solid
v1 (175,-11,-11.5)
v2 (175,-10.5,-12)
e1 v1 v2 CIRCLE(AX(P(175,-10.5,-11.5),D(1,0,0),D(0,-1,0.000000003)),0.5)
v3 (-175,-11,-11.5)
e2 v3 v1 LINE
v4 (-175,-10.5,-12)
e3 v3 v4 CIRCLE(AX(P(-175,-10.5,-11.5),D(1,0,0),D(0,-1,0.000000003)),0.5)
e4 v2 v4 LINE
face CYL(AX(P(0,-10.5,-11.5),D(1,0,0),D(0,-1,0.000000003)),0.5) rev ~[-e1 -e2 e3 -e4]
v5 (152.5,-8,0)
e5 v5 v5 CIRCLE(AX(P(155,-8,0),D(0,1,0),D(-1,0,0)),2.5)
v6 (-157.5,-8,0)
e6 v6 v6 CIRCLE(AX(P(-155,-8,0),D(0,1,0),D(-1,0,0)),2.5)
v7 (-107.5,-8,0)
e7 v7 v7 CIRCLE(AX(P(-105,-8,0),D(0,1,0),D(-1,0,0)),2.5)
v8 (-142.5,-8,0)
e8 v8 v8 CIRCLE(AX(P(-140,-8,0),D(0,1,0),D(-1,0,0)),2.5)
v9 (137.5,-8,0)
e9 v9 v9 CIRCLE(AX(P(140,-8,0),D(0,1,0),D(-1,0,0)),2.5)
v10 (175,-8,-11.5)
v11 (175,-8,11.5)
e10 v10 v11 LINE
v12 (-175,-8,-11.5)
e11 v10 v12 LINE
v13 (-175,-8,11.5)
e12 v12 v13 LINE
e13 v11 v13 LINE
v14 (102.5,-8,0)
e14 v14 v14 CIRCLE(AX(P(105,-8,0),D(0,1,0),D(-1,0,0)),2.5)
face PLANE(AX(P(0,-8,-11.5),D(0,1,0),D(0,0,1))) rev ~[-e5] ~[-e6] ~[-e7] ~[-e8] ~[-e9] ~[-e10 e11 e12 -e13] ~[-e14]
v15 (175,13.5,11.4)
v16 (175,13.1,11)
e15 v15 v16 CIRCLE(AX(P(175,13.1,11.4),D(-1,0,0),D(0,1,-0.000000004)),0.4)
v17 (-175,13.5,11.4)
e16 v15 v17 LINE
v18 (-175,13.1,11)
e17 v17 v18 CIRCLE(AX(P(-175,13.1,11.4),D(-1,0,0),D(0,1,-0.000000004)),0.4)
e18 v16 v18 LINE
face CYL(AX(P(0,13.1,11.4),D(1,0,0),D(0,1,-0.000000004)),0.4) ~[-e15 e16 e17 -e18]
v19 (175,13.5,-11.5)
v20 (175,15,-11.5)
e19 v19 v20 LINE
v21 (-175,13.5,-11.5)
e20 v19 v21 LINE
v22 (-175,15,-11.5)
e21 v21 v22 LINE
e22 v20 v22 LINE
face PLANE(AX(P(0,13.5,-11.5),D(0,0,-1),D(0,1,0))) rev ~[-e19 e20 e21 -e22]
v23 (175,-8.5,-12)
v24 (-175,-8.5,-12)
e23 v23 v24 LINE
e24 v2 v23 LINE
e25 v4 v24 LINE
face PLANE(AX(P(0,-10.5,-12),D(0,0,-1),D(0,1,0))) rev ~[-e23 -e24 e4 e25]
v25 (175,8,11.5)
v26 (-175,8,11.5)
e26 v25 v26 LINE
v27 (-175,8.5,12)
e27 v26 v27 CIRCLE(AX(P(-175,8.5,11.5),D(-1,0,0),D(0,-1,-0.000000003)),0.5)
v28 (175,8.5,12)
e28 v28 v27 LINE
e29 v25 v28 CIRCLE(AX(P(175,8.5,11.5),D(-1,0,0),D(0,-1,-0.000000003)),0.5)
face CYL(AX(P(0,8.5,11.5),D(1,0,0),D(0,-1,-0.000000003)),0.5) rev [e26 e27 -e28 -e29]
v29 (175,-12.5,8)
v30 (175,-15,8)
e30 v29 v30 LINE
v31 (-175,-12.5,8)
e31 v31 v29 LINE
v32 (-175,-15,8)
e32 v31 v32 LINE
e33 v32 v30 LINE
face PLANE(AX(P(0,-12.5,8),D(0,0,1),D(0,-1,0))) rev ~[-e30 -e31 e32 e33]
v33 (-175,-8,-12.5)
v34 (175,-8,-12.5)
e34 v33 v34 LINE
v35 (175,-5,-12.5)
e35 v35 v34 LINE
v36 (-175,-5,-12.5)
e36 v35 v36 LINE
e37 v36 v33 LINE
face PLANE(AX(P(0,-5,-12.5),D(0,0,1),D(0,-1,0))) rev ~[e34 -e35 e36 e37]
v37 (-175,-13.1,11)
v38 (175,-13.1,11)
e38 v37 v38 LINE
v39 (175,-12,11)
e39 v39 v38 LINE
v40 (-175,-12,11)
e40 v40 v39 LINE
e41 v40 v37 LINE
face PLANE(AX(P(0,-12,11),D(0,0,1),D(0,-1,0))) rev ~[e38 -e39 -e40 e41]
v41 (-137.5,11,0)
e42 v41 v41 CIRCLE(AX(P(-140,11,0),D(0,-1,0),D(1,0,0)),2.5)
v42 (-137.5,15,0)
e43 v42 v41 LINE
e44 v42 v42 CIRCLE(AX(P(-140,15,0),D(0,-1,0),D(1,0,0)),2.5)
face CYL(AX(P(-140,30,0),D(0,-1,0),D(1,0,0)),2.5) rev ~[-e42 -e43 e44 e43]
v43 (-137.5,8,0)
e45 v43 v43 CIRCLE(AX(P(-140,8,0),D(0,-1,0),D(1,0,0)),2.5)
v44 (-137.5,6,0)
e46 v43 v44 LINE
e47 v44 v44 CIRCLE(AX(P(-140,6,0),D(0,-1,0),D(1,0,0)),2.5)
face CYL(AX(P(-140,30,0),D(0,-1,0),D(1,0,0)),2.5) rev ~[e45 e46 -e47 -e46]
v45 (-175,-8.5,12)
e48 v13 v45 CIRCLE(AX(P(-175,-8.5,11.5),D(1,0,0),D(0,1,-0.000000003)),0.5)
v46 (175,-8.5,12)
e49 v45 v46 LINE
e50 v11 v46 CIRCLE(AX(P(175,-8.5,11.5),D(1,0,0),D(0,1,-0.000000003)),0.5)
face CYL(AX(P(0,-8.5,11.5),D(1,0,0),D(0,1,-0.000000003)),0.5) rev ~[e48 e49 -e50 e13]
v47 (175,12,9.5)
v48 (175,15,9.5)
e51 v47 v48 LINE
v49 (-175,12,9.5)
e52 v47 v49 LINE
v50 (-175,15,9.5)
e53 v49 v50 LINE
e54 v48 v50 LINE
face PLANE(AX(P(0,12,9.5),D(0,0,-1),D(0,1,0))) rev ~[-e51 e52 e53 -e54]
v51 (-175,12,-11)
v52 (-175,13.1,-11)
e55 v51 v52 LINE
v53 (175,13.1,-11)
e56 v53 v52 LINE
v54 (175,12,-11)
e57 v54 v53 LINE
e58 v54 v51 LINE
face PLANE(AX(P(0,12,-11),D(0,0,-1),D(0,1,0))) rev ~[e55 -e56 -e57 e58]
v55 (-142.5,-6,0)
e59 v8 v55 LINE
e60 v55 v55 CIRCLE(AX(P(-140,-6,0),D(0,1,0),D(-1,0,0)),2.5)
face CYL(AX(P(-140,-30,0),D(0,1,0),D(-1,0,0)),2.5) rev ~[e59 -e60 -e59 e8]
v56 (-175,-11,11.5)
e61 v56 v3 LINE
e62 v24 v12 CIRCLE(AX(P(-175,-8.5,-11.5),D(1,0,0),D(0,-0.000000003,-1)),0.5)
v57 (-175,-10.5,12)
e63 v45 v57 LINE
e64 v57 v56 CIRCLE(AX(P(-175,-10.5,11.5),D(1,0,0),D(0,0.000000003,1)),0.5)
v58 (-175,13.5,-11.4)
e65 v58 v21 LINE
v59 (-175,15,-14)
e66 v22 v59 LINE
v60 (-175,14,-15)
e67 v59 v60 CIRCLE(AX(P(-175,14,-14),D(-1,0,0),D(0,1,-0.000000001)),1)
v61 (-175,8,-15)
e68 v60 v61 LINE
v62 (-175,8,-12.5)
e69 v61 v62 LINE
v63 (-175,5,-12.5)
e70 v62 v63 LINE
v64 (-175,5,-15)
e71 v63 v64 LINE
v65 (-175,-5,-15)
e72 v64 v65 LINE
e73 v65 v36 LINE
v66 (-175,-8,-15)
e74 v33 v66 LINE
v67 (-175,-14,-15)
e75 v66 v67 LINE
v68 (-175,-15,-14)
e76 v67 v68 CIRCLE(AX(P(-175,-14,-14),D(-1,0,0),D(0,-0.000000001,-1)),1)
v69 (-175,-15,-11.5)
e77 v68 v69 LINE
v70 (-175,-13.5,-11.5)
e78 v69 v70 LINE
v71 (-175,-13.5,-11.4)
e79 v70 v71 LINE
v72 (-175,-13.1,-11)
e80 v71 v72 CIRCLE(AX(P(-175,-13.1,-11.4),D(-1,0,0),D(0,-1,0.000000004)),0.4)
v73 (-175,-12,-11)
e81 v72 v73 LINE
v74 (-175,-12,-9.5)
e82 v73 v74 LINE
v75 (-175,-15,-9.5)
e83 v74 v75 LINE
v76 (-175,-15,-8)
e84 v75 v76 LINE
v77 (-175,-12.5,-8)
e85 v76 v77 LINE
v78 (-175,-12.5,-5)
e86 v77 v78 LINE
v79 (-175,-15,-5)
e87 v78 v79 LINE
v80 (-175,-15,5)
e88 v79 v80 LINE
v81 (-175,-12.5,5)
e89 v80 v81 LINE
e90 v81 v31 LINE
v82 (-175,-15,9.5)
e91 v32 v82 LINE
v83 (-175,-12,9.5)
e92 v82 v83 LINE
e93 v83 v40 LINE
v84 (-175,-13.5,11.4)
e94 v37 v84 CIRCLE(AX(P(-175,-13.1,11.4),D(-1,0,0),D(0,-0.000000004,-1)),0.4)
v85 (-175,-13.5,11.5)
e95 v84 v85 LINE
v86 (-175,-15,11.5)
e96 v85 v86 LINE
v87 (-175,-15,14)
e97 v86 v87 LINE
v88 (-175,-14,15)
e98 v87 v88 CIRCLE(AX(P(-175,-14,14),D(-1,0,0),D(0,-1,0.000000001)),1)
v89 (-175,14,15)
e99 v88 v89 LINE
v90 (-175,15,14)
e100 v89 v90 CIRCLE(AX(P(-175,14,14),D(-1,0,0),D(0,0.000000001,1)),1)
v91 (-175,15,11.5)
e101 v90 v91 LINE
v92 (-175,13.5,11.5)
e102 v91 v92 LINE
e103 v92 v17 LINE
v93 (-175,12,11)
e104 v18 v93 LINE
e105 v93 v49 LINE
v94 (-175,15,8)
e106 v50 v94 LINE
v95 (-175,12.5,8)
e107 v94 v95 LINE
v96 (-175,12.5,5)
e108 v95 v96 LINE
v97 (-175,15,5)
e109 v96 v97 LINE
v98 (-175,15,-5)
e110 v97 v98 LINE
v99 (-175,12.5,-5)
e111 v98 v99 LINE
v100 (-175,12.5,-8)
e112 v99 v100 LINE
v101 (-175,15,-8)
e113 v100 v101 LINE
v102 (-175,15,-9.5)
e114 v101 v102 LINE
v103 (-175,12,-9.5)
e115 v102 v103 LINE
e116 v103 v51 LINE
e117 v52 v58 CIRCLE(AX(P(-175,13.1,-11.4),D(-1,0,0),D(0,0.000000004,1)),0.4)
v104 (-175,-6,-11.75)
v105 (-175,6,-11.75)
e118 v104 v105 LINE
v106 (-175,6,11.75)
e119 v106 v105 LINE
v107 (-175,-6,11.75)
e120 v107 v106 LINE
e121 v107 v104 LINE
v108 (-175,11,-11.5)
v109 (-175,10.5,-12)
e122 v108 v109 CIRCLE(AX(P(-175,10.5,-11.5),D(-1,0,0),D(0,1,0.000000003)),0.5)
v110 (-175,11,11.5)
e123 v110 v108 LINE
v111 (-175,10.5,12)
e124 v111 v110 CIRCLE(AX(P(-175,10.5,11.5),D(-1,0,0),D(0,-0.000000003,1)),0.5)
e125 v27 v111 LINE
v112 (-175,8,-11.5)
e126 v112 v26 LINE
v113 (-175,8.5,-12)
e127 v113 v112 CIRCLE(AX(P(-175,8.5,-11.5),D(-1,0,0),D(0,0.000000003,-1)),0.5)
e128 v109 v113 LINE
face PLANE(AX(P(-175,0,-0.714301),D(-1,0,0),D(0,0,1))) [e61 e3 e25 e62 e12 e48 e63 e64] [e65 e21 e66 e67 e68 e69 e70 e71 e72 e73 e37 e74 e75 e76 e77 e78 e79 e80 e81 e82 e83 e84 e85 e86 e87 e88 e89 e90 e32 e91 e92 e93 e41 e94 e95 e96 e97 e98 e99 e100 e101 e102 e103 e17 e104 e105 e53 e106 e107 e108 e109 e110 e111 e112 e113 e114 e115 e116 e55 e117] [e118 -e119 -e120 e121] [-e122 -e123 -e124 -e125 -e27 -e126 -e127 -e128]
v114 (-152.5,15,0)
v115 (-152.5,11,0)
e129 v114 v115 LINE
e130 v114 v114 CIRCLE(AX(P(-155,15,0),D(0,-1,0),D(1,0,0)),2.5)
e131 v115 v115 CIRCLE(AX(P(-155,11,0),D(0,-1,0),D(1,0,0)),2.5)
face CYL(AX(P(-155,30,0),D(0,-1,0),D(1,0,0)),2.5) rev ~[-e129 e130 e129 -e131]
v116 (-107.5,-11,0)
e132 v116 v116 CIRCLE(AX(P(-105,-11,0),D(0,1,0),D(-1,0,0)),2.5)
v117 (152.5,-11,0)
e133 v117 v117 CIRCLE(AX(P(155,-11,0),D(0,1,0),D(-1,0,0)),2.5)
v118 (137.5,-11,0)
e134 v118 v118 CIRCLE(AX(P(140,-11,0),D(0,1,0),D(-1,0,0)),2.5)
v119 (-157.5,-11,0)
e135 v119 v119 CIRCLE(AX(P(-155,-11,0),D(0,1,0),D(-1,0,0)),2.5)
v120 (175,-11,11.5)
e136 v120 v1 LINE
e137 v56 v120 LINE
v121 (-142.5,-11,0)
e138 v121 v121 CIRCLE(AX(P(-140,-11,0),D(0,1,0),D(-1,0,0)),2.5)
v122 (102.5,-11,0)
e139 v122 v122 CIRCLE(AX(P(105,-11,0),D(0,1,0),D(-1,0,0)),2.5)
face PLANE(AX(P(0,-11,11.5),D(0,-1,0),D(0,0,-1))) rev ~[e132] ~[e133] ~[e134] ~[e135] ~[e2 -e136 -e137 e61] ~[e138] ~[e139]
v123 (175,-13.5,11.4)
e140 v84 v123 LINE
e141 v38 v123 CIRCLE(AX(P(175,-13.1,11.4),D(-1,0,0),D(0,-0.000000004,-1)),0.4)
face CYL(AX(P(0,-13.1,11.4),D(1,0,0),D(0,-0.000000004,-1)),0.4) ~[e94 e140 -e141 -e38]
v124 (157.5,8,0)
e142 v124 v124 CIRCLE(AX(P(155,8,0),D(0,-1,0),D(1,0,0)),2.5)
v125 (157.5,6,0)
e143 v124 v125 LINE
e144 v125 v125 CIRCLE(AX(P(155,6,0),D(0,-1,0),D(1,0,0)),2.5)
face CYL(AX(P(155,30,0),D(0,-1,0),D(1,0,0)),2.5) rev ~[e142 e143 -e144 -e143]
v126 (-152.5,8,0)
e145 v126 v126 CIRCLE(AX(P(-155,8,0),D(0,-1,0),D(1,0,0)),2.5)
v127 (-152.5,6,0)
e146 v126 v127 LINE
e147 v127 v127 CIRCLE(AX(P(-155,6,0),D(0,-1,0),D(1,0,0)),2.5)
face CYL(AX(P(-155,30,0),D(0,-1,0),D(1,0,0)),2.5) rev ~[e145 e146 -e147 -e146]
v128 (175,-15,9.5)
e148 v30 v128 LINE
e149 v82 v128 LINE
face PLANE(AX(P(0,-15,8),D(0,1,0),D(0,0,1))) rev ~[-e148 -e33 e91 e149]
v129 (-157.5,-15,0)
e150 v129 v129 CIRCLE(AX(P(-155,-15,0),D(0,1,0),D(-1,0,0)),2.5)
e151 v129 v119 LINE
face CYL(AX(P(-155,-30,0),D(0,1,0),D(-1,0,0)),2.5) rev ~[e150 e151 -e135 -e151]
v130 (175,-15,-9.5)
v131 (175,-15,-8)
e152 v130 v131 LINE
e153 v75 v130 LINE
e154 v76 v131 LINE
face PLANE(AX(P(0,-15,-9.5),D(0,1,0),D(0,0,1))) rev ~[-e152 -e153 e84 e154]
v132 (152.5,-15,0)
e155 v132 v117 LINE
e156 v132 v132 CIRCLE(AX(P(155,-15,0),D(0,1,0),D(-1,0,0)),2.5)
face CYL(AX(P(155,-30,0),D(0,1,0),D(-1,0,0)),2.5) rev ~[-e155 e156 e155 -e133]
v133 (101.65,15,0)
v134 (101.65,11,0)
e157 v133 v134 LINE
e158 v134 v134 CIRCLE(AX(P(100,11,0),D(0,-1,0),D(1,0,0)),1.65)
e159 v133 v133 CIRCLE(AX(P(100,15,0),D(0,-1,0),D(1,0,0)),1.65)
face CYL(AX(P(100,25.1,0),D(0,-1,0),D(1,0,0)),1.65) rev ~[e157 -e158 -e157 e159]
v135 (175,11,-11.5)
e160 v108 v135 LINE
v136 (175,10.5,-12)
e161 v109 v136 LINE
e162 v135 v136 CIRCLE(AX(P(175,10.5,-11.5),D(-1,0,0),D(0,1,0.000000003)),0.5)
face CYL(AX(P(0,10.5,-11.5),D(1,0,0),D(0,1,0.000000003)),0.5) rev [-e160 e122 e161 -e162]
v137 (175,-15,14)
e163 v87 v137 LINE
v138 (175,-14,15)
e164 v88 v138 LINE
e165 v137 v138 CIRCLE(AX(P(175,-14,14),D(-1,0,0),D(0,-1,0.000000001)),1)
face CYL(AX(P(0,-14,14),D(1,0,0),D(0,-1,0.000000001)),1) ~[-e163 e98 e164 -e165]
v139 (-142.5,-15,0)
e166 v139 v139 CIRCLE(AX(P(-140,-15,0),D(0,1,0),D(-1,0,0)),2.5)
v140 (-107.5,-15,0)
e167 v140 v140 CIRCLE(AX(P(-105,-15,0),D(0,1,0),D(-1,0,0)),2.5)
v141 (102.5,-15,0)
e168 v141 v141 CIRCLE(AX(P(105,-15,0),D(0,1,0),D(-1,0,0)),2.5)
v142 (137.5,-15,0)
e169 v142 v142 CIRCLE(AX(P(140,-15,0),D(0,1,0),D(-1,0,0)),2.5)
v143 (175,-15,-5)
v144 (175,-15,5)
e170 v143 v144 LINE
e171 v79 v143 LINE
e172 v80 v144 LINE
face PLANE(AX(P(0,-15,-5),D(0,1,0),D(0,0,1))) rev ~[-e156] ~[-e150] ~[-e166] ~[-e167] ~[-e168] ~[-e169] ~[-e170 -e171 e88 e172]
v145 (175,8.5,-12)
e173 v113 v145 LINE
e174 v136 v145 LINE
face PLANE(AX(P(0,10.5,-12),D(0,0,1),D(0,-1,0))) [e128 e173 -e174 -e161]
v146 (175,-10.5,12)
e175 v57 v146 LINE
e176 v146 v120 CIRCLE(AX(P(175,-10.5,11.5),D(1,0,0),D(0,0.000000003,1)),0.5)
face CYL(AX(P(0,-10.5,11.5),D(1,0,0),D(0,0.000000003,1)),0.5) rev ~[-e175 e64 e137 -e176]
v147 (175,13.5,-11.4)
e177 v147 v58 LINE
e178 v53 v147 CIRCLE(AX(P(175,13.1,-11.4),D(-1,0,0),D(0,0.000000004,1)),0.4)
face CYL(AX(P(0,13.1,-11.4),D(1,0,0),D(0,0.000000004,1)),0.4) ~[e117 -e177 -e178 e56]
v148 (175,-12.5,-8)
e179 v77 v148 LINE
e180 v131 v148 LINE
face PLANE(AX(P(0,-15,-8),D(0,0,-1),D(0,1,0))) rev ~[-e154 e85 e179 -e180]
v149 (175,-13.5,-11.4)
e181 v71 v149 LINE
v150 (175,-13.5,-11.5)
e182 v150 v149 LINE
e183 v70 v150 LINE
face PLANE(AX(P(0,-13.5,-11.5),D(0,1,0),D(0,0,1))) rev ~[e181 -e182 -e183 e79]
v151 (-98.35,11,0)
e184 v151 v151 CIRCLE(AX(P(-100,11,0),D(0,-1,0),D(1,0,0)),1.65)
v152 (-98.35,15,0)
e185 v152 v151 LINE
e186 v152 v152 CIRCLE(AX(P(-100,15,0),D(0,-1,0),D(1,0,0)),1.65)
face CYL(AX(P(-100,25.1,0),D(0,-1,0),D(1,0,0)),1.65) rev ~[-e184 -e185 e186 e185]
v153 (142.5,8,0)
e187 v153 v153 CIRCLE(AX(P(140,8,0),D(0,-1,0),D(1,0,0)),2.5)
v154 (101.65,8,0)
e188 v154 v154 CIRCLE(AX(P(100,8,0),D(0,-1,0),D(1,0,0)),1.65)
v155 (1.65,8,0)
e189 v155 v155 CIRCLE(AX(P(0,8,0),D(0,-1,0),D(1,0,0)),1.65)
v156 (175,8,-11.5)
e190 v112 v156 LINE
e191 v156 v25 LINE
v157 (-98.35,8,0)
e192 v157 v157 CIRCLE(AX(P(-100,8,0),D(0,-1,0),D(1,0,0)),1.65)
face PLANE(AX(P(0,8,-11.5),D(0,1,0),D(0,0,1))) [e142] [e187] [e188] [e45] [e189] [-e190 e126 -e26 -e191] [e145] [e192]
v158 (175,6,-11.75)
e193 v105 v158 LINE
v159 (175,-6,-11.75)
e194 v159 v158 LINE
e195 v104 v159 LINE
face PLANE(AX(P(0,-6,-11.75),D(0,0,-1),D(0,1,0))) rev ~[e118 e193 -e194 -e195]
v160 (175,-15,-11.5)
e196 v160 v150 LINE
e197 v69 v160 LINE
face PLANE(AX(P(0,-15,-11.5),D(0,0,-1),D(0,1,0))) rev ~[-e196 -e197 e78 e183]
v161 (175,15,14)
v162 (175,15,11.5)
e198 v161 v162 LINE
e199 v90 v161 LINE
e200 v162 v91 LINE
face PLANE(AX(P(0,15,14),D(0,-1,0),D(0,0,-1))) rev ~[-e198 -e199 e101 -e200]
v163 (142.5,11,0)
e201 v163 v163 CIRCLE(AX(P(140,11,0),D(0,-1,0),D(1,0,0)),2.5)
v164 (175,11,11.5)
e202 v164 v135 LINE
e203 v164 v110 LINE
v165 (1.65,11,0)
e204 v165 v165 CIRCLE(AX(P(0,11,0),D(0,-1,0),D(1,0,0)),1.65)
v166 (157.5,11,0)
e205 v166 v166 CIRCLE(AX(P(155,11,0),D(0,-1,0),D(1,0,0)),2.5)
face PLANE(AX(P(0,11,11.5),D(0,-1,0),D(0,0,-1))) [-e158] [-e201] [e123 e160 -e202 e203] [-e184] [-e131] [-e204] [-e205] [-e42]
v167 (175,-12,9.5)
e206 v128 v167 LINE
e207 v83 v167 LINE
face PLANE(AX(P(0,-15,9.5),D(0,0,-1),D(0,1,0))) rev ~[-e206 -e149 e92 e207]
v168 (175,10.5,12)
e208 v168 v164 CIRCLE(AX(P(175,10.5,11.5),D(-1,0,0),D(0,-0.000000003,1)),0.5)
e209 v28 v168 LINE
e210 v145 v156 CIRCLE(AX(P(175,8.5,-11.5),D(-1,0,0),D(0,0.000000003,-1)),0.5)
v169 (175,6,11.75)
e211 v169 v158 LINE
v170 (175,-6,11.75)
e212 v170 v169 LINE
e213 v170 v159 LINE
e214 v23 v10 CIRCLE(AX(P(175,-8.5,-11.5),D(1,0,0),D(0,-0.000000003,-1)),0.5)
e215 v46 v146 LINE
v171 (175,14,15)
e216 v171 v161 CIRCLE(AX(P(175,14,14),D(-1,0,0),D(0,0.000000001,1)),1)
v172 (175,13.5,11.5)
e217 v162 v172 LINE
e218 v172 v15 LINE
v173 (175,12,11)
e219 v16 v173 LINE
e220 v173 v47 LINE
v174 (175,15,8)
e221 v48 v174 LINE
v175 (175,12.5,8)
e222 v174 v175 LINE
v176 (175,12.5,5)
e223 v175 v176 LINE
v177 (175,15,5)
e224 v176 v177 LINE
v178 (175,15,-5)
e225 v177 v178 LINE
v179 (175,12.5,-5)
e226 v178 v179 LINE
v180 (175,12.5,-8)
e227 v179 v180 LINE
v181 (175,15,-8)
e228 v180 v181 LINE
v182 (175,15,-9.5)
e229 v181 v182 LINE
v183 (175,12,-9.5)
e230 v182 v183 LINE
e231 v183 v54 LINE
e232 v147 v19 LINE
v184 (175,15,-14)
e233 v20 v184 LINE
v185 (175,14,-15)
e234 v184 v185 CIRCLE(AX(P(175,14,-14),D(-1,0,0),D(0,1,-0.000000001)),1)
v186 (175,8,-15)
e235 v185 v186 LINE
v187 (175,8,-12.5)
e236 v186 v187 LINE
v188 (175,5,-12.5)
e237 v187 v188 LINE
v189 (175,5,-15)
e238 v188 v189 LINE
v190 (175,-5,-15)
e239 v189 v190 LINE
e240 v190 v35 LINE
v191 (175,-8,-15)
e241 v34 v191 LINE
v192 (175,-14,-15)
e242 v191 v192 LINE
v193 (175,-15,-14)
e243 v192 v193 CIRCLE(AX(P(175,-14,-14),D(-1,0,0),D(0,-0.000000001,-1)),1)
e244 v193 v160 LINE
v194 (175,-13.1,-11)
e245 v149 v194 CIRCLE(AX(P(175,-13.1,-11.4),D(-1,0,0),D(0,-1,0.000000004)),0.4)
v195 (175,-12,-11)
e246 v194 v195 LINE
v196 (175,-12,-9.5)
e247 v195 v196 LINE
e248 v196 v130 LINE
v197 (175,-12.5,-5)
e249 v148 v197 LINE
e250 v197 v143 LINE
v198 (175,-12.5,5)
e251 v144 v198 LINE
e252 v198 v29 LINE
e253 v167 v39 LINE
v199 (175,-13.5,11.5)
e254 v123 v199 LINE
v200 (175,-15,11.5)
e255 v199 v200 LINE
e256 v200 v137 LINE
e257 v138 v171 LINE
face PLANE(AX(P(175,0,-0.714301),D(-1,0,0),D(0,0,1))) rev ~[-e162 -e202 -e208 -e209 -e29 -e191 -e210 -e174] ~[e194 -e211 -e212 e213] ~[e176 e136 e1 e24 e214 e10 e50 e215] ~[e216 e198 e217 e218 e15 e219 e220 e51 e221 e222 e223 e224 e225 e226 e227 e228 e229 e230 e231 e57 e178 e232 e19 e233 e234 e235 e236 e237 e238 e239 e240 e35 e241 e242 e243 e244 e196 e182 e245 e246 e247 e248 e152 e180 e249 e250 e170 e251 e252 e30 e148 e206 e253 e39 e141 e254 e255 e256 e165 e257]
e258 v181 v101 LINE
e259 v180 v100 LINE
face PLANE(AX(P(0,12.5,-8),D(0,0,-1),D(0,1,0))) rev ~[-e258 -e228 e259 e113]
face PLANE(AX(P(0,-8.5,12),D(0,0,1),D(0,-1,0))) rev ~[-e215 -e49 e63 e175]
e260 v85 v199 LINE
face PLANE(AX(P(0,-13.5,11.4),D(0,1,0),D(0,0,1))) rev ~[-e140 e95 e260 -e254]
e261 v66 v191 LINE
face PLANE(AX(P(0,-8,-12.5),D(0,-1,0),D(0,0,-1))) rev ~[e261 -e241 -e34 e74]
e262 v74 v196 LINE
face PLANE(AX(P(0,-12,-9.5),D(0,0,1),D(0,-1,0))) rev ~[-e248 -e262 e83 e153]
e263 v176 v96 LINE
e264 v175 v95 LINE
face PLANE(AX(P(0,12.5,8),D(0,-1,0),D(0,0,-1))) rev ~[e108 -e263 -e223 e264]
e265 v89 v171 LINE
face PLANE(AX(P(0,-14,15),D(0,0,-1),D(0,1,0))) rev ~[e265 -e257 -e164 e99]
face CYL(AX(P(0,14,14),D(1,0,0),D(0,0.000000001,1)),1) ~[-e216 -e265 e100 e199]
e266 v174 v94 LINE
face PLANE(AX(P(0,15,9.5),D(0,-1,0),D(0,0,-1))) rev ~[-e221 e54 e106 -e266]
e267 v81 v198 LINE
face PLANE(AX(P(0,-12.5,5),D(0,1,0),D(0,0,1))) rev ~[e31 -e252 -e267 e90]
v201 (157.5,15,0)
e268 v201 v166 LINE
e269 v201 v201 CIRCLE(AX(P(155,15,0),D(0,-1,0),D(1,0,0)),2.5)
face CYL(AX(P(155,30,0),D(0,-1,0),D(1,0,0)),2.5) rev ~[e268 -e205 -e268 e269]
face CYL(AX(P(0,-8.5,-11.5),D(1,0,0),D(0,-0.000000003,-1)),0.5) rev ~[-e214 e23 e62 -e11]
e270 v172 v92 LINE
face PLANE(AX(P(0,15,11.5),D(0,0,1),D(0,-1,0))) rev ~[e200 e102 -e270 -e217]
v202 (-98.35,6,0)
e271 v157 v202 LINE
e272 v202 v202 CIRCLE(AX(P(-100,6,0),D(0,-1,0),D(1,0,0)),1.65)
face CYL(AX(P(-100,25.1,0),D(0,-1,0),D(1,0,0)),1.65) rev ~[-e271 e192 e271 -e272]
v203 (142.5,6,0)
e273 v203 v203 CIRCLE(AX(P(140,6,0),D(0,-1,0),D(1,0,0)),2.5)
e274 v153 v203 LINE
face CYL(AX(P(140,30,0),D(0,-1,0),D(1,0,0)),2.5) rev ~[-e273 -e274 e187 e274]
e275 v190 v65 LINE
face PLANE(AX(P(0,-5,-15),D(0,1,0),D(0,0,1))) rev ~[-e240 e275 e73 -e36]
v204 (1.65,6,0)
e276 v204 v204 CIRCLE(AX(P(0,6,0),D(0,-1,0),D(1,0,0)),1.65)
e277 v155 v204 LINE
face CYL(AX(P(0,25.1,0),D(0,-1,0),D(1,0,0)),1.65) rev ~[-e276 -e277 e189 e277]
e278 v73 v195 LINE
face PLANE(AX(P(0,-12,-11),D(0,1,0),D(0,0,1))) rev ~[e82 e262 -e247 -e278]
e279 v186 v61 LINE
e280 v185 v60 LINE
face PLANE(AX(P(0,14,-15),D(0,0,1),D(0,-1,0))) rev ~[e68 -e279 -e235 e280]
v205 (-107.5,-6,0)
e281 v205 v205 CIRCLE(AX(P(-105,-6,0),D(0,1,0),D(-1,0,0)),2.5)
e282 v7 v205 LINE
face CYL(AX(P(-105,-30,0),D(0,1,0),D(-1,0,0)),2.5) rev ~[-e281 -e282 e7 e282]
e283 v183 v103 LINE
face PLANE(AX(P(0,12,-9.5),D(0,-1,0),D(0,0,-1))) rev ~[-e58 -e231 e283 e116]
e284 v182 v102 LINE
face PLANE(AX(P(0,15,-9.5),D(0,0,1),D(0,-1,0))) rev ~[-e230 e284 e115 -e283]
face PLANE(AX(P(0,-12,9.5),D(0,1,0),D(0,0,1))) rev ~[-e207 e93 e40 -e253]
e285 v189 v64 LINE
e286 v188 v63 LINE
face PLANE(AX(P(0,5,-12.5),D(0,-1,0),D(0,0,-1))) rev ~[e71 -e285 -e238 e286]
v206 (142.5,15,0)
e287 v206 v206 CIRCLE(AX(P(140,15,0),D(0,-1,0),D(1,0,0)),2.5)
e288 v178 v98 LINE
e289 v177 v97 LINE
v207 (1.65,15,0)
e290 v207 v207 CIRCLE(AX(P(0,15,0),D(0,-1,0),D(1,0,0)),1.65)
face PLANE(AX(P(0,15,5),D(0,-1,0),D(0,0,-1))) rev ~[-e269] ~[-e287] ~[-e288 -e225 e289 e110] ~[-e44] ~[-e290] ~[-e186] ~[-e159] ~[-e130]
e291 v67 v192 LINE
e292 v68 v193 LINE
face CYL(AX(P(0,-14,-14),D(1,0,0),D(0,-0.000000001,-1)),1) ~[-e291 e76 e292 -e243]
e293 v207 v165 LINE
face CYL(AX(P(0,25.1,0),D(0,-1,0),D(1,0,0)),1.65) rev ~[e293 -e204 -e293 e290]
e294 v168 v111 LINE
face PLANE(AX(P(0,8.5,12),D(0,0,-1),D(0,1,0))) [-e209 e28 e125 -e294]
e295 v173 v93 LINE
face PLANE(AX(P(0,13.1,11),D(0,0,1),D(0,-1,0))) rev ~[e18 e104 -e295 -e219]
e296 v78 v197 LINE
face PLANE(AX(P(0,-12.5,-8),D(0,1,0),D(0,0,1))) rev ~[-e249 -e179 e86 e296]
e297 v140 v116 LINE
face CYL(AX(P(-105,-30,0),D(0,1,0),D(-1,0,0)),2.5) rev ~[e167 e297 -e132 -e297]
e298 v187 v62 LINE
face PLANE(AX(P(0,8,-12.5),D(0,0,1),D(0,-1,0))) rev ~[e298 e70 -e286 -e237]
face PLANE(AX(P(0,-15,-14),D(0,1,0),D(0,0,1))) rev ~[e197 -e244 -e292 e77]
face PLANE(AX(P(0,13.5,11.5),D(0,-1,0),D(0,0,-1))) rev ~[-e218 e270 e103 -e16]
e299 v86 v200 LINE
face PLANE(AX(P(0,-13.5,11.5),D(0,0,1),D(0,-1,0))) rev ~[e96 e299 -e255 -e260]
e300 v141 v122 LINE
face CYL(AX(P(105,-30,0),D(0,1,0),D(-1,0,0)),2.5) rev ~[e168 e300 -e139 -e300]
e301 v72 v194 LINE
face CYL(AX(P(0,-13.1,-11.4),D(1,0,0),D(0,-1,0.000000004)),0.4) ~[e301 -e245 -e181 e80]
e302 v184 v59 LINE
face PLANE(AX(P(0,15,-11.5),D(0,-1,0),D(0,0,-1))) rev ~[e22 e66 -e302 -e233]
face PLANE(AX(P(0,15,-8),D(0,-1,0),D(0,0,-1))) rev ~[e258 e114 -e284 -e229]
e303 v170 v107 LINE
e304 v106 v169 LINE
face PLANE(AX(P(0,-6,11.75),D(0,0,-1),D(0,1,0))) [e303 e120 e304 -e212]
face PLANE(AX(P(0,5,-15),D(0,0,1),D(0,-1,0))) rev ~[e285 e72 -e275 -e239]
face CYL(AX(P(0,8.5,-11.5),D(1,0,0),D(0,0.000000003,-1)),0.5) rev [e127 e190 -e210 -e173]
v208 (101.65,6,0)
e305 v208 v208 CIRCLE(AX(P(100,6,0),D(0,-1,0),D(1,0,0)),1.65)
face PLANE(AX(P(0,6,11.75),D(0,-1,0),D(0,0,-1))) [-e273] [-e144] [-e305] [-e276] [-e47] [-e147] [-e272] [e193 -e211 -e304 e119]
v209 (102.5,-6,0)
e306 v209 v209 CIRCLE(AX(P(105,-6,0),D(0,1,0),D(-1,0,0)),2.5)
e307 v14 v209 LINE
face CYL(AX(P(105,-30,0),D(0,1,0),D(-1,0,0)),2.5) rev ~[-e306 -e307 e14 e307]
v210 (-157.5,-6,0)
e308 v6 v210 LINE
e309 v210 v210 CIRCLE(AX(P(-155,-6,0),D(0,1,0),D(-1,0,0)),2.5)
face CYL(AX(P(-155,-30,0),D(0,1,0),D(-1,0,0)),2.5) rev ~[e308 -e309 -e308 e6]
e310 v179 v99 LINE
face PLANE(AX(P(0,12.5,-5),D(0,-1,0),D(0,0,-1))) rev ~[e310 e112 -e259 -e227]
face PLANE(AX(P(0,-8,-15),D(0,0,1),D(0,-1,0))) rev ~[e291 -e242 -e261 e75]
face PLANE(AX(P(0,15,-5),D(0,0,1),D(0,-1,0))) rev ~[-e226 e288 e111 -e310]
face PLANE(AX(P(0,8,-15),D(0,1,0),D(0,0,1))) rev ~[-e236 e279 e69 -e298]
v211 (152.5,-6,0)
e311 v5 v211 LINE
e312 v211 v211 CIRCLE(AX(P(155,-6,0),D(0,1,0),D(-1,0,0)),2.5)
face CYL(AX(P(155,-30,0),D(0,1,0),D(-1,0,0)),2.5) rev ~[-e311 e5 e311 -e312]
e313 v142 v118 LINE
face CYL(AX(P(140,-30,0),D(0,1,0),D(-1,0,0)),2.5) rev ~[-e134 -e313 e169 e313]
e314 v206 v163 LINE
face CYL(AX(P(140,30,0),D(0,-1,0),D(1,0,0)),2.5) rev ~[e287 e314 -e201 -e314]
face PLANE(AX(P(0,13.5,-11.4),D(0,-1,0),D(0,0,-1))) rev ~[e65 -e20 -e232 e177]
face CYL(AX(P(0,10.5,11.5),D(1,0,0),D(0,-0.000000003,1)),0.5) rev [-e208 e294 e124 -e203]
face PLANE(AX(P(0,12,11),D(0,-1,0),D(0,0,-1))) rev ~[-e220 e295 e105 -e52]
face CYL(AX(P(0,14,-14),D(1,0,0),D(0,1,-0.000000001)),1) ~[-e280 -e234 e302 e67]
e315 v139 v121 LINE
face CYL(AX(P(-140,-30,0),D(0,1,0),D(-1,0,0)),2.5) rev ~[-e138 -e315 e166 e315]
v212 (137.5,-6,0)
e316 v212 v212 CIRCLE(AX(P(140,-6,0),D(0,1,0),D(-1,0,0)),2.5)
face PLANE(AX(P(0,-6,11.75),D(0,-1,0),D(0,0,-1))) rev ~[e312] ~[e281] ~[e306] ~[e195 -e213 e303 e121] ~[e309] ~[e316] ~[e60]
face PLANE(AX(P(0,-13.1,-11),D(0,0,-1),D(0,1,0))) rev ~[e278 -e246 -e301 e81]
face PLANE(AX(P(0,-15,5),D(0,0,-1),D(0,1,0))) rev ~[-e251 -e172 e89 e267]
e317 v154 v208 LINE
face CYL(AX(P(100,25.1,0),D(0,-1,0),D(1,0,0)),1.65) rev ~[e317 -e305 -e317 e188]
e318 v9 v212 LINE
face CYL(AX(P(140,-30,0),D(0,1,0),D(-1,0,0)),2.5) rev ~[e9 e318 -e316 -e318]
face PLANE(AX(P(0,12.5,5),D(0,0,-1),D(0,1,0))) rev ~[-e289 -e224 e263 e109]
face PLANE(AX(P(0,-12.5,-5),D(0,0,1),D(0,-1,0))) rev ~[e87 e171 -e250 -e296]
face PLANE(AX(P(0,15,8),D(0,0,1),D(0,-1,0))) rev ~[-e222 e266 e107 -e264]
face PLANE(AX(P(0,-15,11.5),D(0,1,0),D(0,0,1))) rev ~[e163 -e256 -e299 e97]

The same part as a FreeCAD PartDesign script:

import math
import FreeCAD as App
import Part
import Sketcher
from FreeCAD import Vector
Q = App.Units.Quantity

doc = App.newDocument("Part")
body = doc.addObject("PartDesign::Body", "Body")

sketch1 = doc.addObject("Sketcher::SketchObject", "Sketch")
body.addObject(sketch1)
sketch1.AttachmentSupport = (doc.YZ_Plane, [""])
sketch1.MapMode = "FlatFace"
sketch1.addGeometry([
    Part.LineSegment(Vector(15, 11.5, 0), Vector(15, 14, 0)),
    Part.ArcOfCircle(Part.Circle(Vector(14, 14, 0), Vector(0, 0, 1), 1), math.radians(0), math.radians(90)),
    Part.LineSegment(Vector(14, 15, 0), Vector(-14, 15, 0)),
    Part.ArcOfCircle(Part.Circle(Vector(-14, 14, 0), Vector(0, 0, 1), 1), math.radians(90), math.radians(180)),
    Part.LineSegment(Vector(-15, 14, 0), Vector(-15, 11.5, 0)),
    Part.LineSegment(Vector(-15, 11.5, 0), Vector(-13.5, 11.5, 0)),
    Part.LineSegment(Vector(-13.5, 11.5, 0), Vector(-13.5, 11.4, 0)),
    Part.ArcOfCircle(Part.Circle(Vector(-13.1, 11.4, 0), Vector(0, 0, 1), 0.4), math.radians(-180), math.radians(-90)),
    Part.LineSegment(Vector(-13.1, 11, 0), Vector(-12, 11, 0)),
    Part.LineSegment(Vector(-12, 11, 0), Vector(-12, 9.5, 0)),
    Part.LineSegment(Vector(-12, 9.5, 0), Vector(-15, 9.5, 0)),
    Part.LineSegment(Vector(-15, 9.5, 0), Vector(-15, 8, 0)),
    Part.LineSegment(Vector(-15, 8, 0), Vector(-12.5, 8, 0)),
    Part.LineSegment(Vector(-12.5, 8, 0), Vector(-12.5, 5, 0)),
    Part.LineSegment(Vector(-12.5, 5, 0), Vector(-15, 5, 0)),
    Part.LineSegment(Vector(-15, 5, 0), Vector(-15, -5, 0)),
    Part.LineSegment(Vector(-15, -5, 0), Vector(-12.5, -5, 0)),
    Part.LineSegment(Vector(-12.5, -5, 0), Vector(-12.5, -8, 0)),
    Part.LineSegment(Vector(-12.5, -8, 0), Vector(-15, -8, 0)),
    Part.LineSegment(Vector(-15, -8, 0), Vector(-15, -9.5, 0)),
    Part.LineSegment(Vector(-15, -9.5, 0), Vector(-12, -9.5, 0)),
    Part.LineSegment(Vector(-12, -9.5, 0), Vector(-12, -11, 0)),
    Part.LineSegment(Vector(-12, -11, 0), Vector(-13.1, -11, 0)),
    Part.ArcOfCircle(Part.Circle(Vector(-13.1, -11.4, 0), Vector(0, 0, 1), 0.4), math.radians(90), math.radians(180)),
    Part.LineSegment(Vector(-13.5, -11.4, 0), Vector(-13.5, -11.5, 0)),
    Part.LineSegment(Vector(-13.5, -11.5, 0), Vector(-15, -11.5, 0)),
    Part.LineSegment(Vector(-15, -11.5, 0), Vector(-15, -14, 0)),
    Part.ArcOfCircle(Part.Circle(Vector(-14, -14, 0), Vector(0, 0, 1), 1), math.radians(-180), math.radians(-90)),
    Part.LineSegment(Vector(-14, -15, 0), Vector(-8, -15, 0)),
    Part.LineSegment(Vector(-8, -15, 0), Vector(-8, -12.5, 0)),
    Part.LineSegment(Vector(-8, -12.5, 0), Vector(-5, -12.5, 0)),
    Part.LineSegment(Vector(-5, -12.5, 0), Vector(-5, -15, 0)),
    Part.LineSegment(Vector(-5, -15, 0), Vector(5, -15, 0)),
    Part.LineSegment(Vector(5, -15, 0), Vector(5, -12.5, 0)),
    Part.LineSegment(Vector(5, -12.5, 0), Vector(8, -12.5, 0)),
    Part.LineSegment(Vector(8, -12.5, 0), Vector(8, -15, 0)),
    Part.LineSegment(Vector(8, -15, 0), Vector(14, -15, 0)),
    Part.ArcOfCircle(Part.Circle(Vector(14, -14, 0), Vector(0, 0, 1), 1), math.radians(-90), math.radians(0)),
    Part.LineSegment(Vector(15, -14, 0), Vector(15, -11.5, 0)),
    Part.LineSegment(Vector(15, -11.5, 0), Vector(13.5, -11.5, 0)),
    Part.LineSegment(Vector(13.5, -11.5, 0), Vector(13.5, -11.4, 0)),
    Part.ArcOfCircle(Part.Circle(Vector(13.1, -11.4, 0), Vector(0, 0, 1), 0.4), math.radians(0), math.radians(90)),
    Part.LineSegment(Vector(13.1, -11, 0), Vector(12, -11, 0)),
    Part.LineSegment(Vector(12, -11, 0), Vector(12, -9.5, 0)),
    Part.LineSegment(Vector(12, -9.5, 0), Vector(15, -9.5, 0)),
    Part.LineSegment(Vector(15, -9.5, 0), Vector(15, -8, 0)),
    Part.LineSegment(Vector(15, -8, 0), Vector(12.5, -8, 0)),
    Part.LineSegment(Vector(12.5, -8, 0), Vector(12.5, -5, 0)),
    Part.LineSegment(Vector(12.5, -5, 0), Vector(15, -5, 0)),
    Part.LineSegment(Vector(15, -5, 0), Vector(15, 5, 0)),
    Part.LineSegment(Vector(15, 5, 0), Vector(12.5, 5, 0)),
    Part.LineSegment(Vector(12.5, 5, 0), Vector(12.5, 8, 0)),
    Part.LineSegment(Vector(12.5, 8, 0), Vector(15, 8, 0)),
    Part.LineSegment(Vector(15, 8, 0), Vector(15, 9.5, 0)),
    Part.LineSegment(Vector(15, 9.5, 0), Vector(12, 9.5, 0)),
    Part.LineSegment(Vector(12, 9.5, 0), Vector(12, 11, 0)),
    Part.LineSegment(Vector(12, 11, 0), Vector(13.1, 11, 0)),
    Part.ArcOfCircle(Part.Circle(Vector(13.1, 11.4, 0), Vector(0, 0, 1), 0.4), math.radians(-90), math.radians(0)),
    Part.LineSegment(Vector(13.5, 11.4, 0), Vector(13.5, 11.5, 0)),
    Part.LineSegment(Vector(13.5, 11.5, 0), Vector(15, 11.5, 0)),
    Part.ArcOfCircle(Part.Circle(Vector(-10.5, -11.5, 0), Vector(0, 0, 1), 0.5), math.radians(180), math.radians(270)),
    Part.LineSegment(Vector(-11, -11.5, 0), Vector(-11, 11.5, 0)),
    Part.ArcOfCircle(Part.Circle(Vector(-10.5, 11.5, 0), Vector(0, 0, 1), 0.5), math.radians(90), math.radians(180)),
    Part.LineSegment(Vector(-10.5, 12, 0), Vector(-8.5, 12, 0)),
    Part.ArcOfCircle(Part.Circle(Vector(-8.5, 11.5, 0), Vector(0, 0, 1), 0.5), math.radians(0), math.radians(90)),
    Part.LineSegment(Vector(-8, 11.5, 0), Vector(-8, -11.5, 0)),
    Part.ArcOfCircle(Part.Circle(Vector(-8.5, -11.5, 0), Vector(0, 0, 1), 0.5), math.radians(-90), math.radians(0)),
    Part.LineSegment(Vector(-8.5, -12, 0), Vector(-10.5, -12, 0)),
    Part.LineSegment(Vector(-6, 11.75, 0), Vector(6, 11.75, 0)),
    Part.LineSegment(Vector(6, 11.75, 0), Vector(6, -11.75, 0)),
    Part.LineSegment(Vector(6, -11.75, 0), Vector(-6, -11.75, 0)),
    Part.LineSegment(Vector(-6, -11.75, 0), Vector(-6, 11.75, 0)),
    Part.LineSegment(Vector(11, 11.5, 0), Vector(11, -11.5, 0)),
    Part.ArcOfCircle(Part.Circle(Vector(10.5, -11.5, 0), Vector(0, 0, 1), 0.5), math.radians(-90), math.radians(0)),
    Part.LineSegment(Vector(10.5, -12, 0), Vector(8.5, -12, 0)),
    Part.ArcOfCircle(Part.Circle(Vector(8.5, -11.5, 0), Vector(0, 0, 1), 0.5), math.radians(180), math.radians(270)),
    Part.LineSegment(Vector(8, -11.5, 0), Vector(8, 11.5, 0)),
    Part.ArcOfCircle(Part.Circle(Vector(8.5, 11.5, 0), Vector(0, 0, 1), 0.5), math.radians(90), math.radians(180)),
    Part.LineSegment(Vector(8.5, 12, 0), Vector(10.5, 12, 0)),
    Part.ArcOfCircle(Part.Circle(Vector(10.5, 11.5, 0), Vector(0, 0, 1), 0.5), math.radians(0), math.radians(90)),
], False)
sketch1.addConstraint([
    Sketcher.Constraint("Tangent", 0, 2, 1, 1),
    Sketcher.Constraint("Tangent", 1, 2, 2, 1),
    Sketcher.Constraint("Tangent", 2, 2, 3, 1),
    Sketcher.Constraint("Tangent", 3, 2, 4, 1),
    Sketcher.Constraint("Coincident", 4, 2, 5, 1),
    Sketcher.Constraint("Coincident", 5, 2, 6, 1),
    Sketcher.Constraint("Tangent", 6, 2, 7, 1),
    Sketcher.Constraint("Tangent", 7, 2, 8, 1),
    Sketcher.Constraint("Coincident", 8, 2, 9, 1),
    Sketcher.Constraint("Coincident", 9, 2, 10, 1),
    Sketcher.Constraint("Coincident", 10, 2, 11, 1),
    Sketcher.Constraint("Coincident", 11, 2, 12, 1),
    Sketcher.Constraint("Coincident", 12, 2, 13, 1),
    Sketcher.Constraint("Coincident", 13, 2, 14, 1),
    Sketcher.Constraint("Coincident", 14, 2, 15, 1),
    Sketcher.Constraint("Coincident", 15, 2, 16, 1),
    Sketcher.Constraint("Coincident", 16, 2, 17, 1),
    Sketcher.Constraint("Coincident", 17, 2, 18, 1),
    Sketcher.Constraint("Coincident", 18, 2, 19, 1),
    Sketcher.Constraint("Coincident", 19, 2, 20, 1),
    Sketcher.Constraint("Coincident", 20, 2, 21, 1),
    Sketcher.Constraint("Coincident", 21, 2, 22, 1),
    Sketcher.Constraint("Tangent", 22, 2, 23, 1),
    Sketcher.Constraint("Tangent", 23, 2, 24, 1),
    Sketcher.Constraint("Coincident", 24, 2, 25, 1),
    Sketcher.Constraint("Coincident", 25, 2, 26, 1),
    Sketcher.Constraint("Tangent", 26, 2, 27, 1),
    Sketcher.Constraint("Tangent", 27, 2, 28, 1),
    Sketcher.Constraint("Coincident", 28, 2, 29, 1),
    Sketcher.Constraint("Coincident", 29, 2, 30, 1),
    Sketcher.Constraint("Coincident", 30, 2, 31, 1),
    Sketcher.Constraint("Coincident", 31, 2, 32, 1),
    Sketcher.Constraint("Coincident", 32, 2, 33, 1),
    Sketcher.Constraint("Coincident", 33, 2, 34, 1),
    Sketcher.Constraint("Coincident", 34, 2, 35, 1),
    Sketcher.Constraint("Coincident", 35, 2, 36, 1),
    Sketcher.Constraint("Tangent", 36, 2, 37, 1),
    Sketcher.Constraint("Tangent", 37, 2, 38, 1),
    Sketcher.Constraint("Coincident", 38, 2, 39, 1),
    Sketcher.Constraint("Coincident", 39, 2, 40, 1),
    Sketcher.Constraint("Tangent", 40, 2, 41, 1),
    Sketcher.Constraint("Tangent", 41, 2, 42, 1),
    Sketcher.Constraint("Coincident", 42, 2, 43, 1),
    Sketcher.Constraint("Coincident", 43, 2, 44, 1),
    Sketcher.Constraint("Coincident", 44, 2, 45, 1),
    Sketcher.Constraint("Coincident", 45, 2, 46, 1),
    Sketcher.Constraint("Coincident", 46, 2, 47, 1),
    Sketcher.Constraint("Coincident", 47, 2, 48, 1),
    Sketcher.Constraint("Coincident", 48, 2, 49, 1),
    Sketcher.Constraint("Coincident", 49, 2, 50, 1),
    Sketcher.Constraint("Coincident", 50, 2, 51, 1),
    Sketcher.Constraint("Coincident", 51, 2, 52, 1),
    Sketcher.Constraint("Coincident", 52, 2, 53, 1),
    Sketcher.Constraint("Coincident", 53, 2, 54, 1),
    Sketcher.Constraint("Coincident", 54, 2, 55, 1),
    Sketcher.Constraint("Coincident", 55, 2, 56, 1),
    Sketcher.Constraint("Tangent", 56, 2, 57, 1),
    Sketcher.Constraint("Tangent", 57, 2, 58, 1),
    Sketcher.Constraint("Coincident", 58, 2, 59, 1),
    Sketcher.Constraint("Coincident", 59, 2, 0, 1),
    Sketcher.Constraint("Tangent", 60, 1, 61, 1),
    Sketcher.Constraint("Tangent", 61, 2, 62, 2),
    Sketcher.Constraint("Tangent", 62, 1, 63, 1),
    Sketcher.Constraint("Tangent", 63, 2, 64, 2),
    Sketcher.Constraint("Tangent", 64, 1, 65, 1),
    Sketcher.Constraint("Tangent", 65, 2, 66, 2),
    Sketcher.Constraint("Tangent", 66, 1, 67, 1),
    Sketcher.Constraint("Tangent", 67, 2, 60, 2),
    Sketcher.Constraint("Coincident", 68, 2, 69, 1),
    Sketcher.Constraint("Coincident", 69, 2, 70, 1),
    Sketcher.Constraint("Coincident", 70, 2, 71, 1),
    Sketcher.Constraint("Coincident", 71, 2, 68, 1),
    Sketcher.Constraint("Tangent", 72, 2, 73, 2),
    Sketcher.Constraint("Tangent", 73, 1, 74, 1),
    Sketcher.Constraint("Tangent", 74, 2, 75, 2),
    Sketcher.Constraint("Tangent", 75, 1, 76, 1),
    Sketcher.Constraint("Tangent", 76, 2, 77, 2),
    Sketcher.Constraint("Tangent", 77, 1, 78, 1),
    Sketcher.Constraint("Tangent", 78, 2, 79, 2),
    Sketcher.Constraint("Tangent", 79, 1, 72, 1),
    Sketcher.Constraint("Vertical", 0),
    Sketcher.Constraint("Horizontal", 2),
    Sketcher.Constraint("Vertical", 4),
    Sketcher.Constraint("Horizontal", 5),
    Sketcher.Constraint("Vertical", 6),
    Sketcher.Constraint("Horizontal", 8),
    Sketcher.Constraint("Vertical", 9),
    Sketcher.Constraint("Horizontal", 10),
    Sketcher.Constraint("Vertical", 11),
    Sketcher.Constraint("Horizontal", 12),
    Sketcher.Constraint("Vertical", 13),
    Sketcher.Constraint("Horizontal", 14),
    Sketcher.Constraint("Vertical", 15),
    Sketcher.Constraint("Horizontal", 16),
    Sketcher.Constraint("Vertical", 17),
    Sketcher.Constraint("Horizontal", 18),
    Sketcher.Constraint("Vertical", 19),
    Sketcher.Constraint("Horizontal", 20),
    Sketcher.Constraint("Vertical", 21),
    Sketcher.Constraint("Horizontal", 22),
    Sketcher.Constraint("Vertical", 24),
    Sketcher.Constraint("Horizontal", 25),
    Sketcher.Constraint("Vertical", 26),
    Sketcher.Constraint("Horizontal", 28),
    Sketcher.Constraint("Vertical", 29),
    Sketcher.Constraint("Horizontal", 30),
    Sketcher.Constraint("Vertical", 31),
    Sketcher.Constraint("Horizontal", 32),
    Sketcher.Constraint("Vertical", 33),
    Sketcher.Constraint("Horizontal", 34),
    Sketcher.Constraint("Vertical", 35),
    Sketcher.Constraint("Horizontal", 36),
    Sketcher.Constraint("Vertical", 38),
    Sketcher.Constraint("Horizontal", 39),
    Sketcher.Constraint("Vertical", 40),
    Sketcher.Constraint("Horizontal", 42),
    Sketcher.Constraint("Vertical", 43),
    Sketcher.Constraint("Horizontal", 44),
    Sketcher.Constraint("Vertical", 45),
    Sketcher.Constraint("Horizontal", 46),
    Sketcher.Constraint("Vertical", 47),
    Sketcher.Constraint("Horizontal", 48),
    Sketcher.Constraint("Vertical", 49),
    Sketcher.Constraint("Horizontal", 50),
    Sketcher.Constraint("Vertical", 51),
    Sketcher.Constraint("Horizontal", 52),
    Sketcher.Constraint("Vertical", 53),
    Sketcher.Constraint("Horizontal", 54),
    Sketcher.Constraint("Vertical", 55),
    Sketcher.Constraint("Horizontal", 56),
    Sketcher.Constraint("Vertical", 58),
    Sketcher.Constraint("Horizontal", 59),
    Sketcher.Constraint("Vertical", 61),
    Sketcher.Constraint("Horizontal", 63),
    Sketcher.Constraint("Vertical", 65),
    Sketcher.Constraint("Horizontal", 67),
    Sketcher.Constraint("Horizontal", 68),
    Sketcher.Constraint("Vertical", 69),
    Sketcher.Constraint("Horizontal", 70),
    Sketcher.Constraint("Vertical", 71),
    Sketcher.Constraint("Vertical", 72),
    Sketcher.Constraint("Horizontal", 74),
    Sketcher.Constraint("Vertical", 76),
    Sketcher.Constraint("Horizontal", 78),
    Sketcher.Constraint("Equal", 1, 3),
    Sketcher.Constraint("Equal", 7, 23),
    Sketcher.Constraint("Equal", 3, 27),
    Sketcher.Constraint("Equal", 27, 37),
    Sketcher.Constraint("Equal", 23, 41),
    Sketcher.Constraint("Equal", 41, 57),
    Sketcher.Constraint("Equal", 60, 62),
    Sketcher.Constraint("Equal", 62, 64),
    Sketcher.Constraint("Equal", 64, 66),
    Sketcher.Constraint("Equal", 66, 73),
    Sketcher.Constraint("Equal", 73, 75),
    Sketcher.Constraint("Equal", 75, 77),
    Sketcher.Constraint("Equal", 77, 79),
    Sketcher.Constraint("Symmetric", 1, 3, 27, 3, -1, 1),
    Sketcher.Constraint("Symmetric", 3, 3, 37, 3, -1, 1),
    Sketcher.Constraint("Symmetric", 7, 3, 41, 3, -1, 1),
    Sketcher.Constraint("Symmetric", 23, 3, 57, 3, -1, 1),
    Sketcher.Constraint("Symmetric", 62, 3, 73, 3, -1, 1),
    Sketcher.Constraint("Symmetric", 66, 3, 77, 3, -1, 1),
    Sketcher.Constraint("Symmetric", 9, 2, 43, 2, -1, 1),
    Sketcher.Constraint("Symmetric", 11, 2, 45, 2, -1, 1),
    Sketcher.Constraint("Symmetric", 13, 2, 47, 2, -1, 1),
    Sketcher.Constraint("Symmetric", 15, 2, 49, 2, -1, 1),
    Sketcher.Constraint("Symmetric", 17, 2, 51, 2, -1, 1),
    Sketcher.Constraint("Symmetric", 19, 2, 53, 2, -1, 1),
    Sketcher.Constraint("Symmetric", 68, 2, 70, 2, -1, 1),
    Sketcher.Constraint("Symmetric", 23, 3, 41, 3, -2),
    Sketcher.Constraint("Symmetric", 30, 2, 33, 2, -2),
    Sketcher.Constraint("Symmetric", 25, 2, 38, 2, -2),
    Sketcher.Constraint("Symmetric", 20, 2, 43, 2, -2),
    Sketcher.Constraint("Symmetric", 18, 2, 45, 2, -2),
    Sketcher.Constraint("Symmetric", 16, 2, 47, 2, -2),
    Sketcher.Constraint("Horizontal", 66, 3, 73, 3),
    Sketcher.Constraint("Horizontal", 79, 3, 4, 2),
    Sketcher.Constraint("Horizontal", 75, 3, 24, 2),
    Sketcher.Constraint("Horizontal", 28, 2, 31, 2),
    Sketcher.Constraint("Horizontal", 5, 2, 58, 2),
    Sketcher.Constraint("Vertical", 4, 2, 10, 2),
    Sketcher.Constraint("Vertical", 11, 2, 14, 2),
    Sketcher.Constraint("Vertical", 43, 2, 54, 2),
    Sketcher.Constraint("Vertical", 29, 2, 64, 1),
    Sketcher.Constraint("Vertical", 35, 2, 75, 1),
    Sketcher.Constraint("Equal", 20, 30),
    Sketcher.Constraint("Equal", 52, 0),
    Sketcher.Constraint("Equal", 59, 9),
    Sketcher.Constraint("Equal", 9, 11),
    Sketcher.Constraint("Equal", 54, 13),
    Sketcher.Constraint("Equal", 32, 15),
    Sketcher.Constraint("Equal", 26, 29),
    Sketcher.Constraint("Radius", 1, Q("1 mm")),
    Sketcher.Constraint("Radius", 7, Q("0.4 mm")),
    Sketcher.Constraint("Radius", 60, Q("0.5 mm")),
    Sketcher.Constraint("DistanceX", 2, 2, 2, 1, Q("28 mm")),
    Sketcher.Constraint("DistanceX", 10, 2, 10, 1, Q("3 mm")),
    Sketcher.Constraint("DistanceX", 28, 1, 28, 2, Q("6 mm")),
    Sketcher.Constraint("DistanceX", 63, 1, 63, 2, Q("2 mm")),
    Sketcher.Constraint("DistanceX", 68, 1, 68, 2, Q("12 mm")),
    Sketcher.Constraint("DistanceY", 61, 1, 61, 2, Q("23 mm")),
    Sketcher.Constraint("DistanceX", 5, 1, 5, 2, Q("1.5 mm")),
    Sketcher.Constraint("DistanceX", 12, 1, 12, 2, Q("2.5 mm")),
    Sketcher.Constraint("DistanceY", 69, 2, 69, 1, Q("23.5 mm")),
])
pad1 = doc.addObject("PartDesign::Pad", "Pad")
body.addObject(pad1)
pad1.Profile = sketch1
pad1.Length = 350
pad1.Midplane = True

sketch2 = doc.addObject("Sketcher::SketchObject", "Sketch001")
body.addObject(sketch2)
sketch2.AttachmentSupport = (doc.XZ_Plane, [""])
sketch2.MapMode = "FlatFace"
sketch2.AttachmentOffset = App.Placement(Vector(0, 0, 15), App.Rotation())
sketch2.addGeometry([
    Part.Circle(Vector(-155, 0, 0), Vector(0, 0, 1), 2.5),
    Part.Circle(Vector(-140, 0, 0), Vector(0, 0, 1), 2.5),
    Part.Circle(Vector(155, 0, 0), Vector(0, 0, 1), 2.5),
    Part.Circle(Vector(140, 0, 0), Vector(0, 0, 1), 2.5),
], False)
sketch2.addConstraint([
    Sketcher.Constraint("Equal", 0, 1),
    Sketcher.Constraint("Equal", 1, 2),
    Sketcher.Constraint("Equal", 2, 3),
    Sketcher.Constraint("Symmetric", 0, 3, 2, 3, -1, 1),
    Sketcher.Constraint("Symmetric", 1, 3, 3, 3, -1, 1),
    Sketcher.Constraint("PointOnObject", 0, 3, -1),
    Sketcher.Constraint("PointOnObject", 1, 3, -1),
    Sketcher.Constraint("Diameter", 0, Q("5 mm")),
    Sketcher.Constraint("DistanceX", 0, 3, -1, 1, Q("155 mm")),
    Sketcher.Constraint("DistanceX", 1, 3, -1, 1, Q("140 mm")),
])
doc.recompute()
hole = doc.addObject("PartDesign::Hole", "Hole")
body.addObject(hole)
hole.Profile = sketch2
hole.ThreadType = "None"
hole.Diameter = 5
hole.DepthType = "Dimension"
hole.Depth = 15
hole.DrillPoint = "Angled"
hole.DrillPointAngle = 118

sketch3 = doc.addObject("Sketcher::SketchObject", "Sketch002")
body.addObject(sketch3)
sketch3.AttachmentSupport = (doc.XZ_Plane, [""])
sketch3.MapMode = "FlatFace"
sketch3.AttachmentOffset = App.Placement(Vector(0, 0, -15), App.Rotation())
sketch3.addGeometry([
    Part.Circle(Vector(-155, 0, 0), Vector(0, 0, 1), 2.5),
    Part.Circle(Vector(-140, 0, 0), Vector(0, 0, 1), 2.5),
    Part.Circle(Vector(155, 0, 0), Vector(0, 0, 1), 2.5),
    Part.Circle(Vector(140, 0, 0), Vector(0, 0, 1), 2.5),
], False)
sketch3.addConstraint([
    Sketcher.Constraint("Equal", 0, 1),
    Sketcher.Constraint("Equal", 1, 2),
    Sketcher.Constraint("Equal", 2, 3),
    Sketcher.Constraint("Symmetric", 0, 3, 2, 3, -1, 1),
    Sketcher.Constraint("Symmetric", 1, 3, 3, 3, -1, 1),
    Sketcher.Constraint("PointOnObject", 0, 3, -1),
    Sketcher.Constraint("PointOnObject", 1, 3, -1),
    Sketcher.Constraint("Diameter", 0, Q("5 mm")),
    Sketcher.Constraint("DistanceX", 0, 3, -1, 1, Q("155 mm")),
    Sketcher.Constraint("DistanceX", 1, 3, -1, 1, Q("140 mm")),
])
doc.recompute()
hole2 = doc.addObject("PartDesign::Hole", "Hole001")
body.addObject(hole2)
hole2.Profile = sketch3
hole2.ThreadType = "None"
hole2.Diameter = 5
hole2.DepthType = "Dimension"
hole2.Depth = 15
hole2.DrillPoint = "Angled"
hole2.DrillPointAngle = 118
hole2.Reversed = True

sketch4 = doc.addObject("Sketcher::SketchObject", "Sketch003")
body.addObject(sketch4)
sketch4.AttachmentSupport = (doc.XZ_Plane, [""])
sketch4.MapMode = "FlatFace"
sketch4.AttachmentOffset = App.Placement(Vector(0, 0, -15), App.Rotation())
sketch4.addGeometry([
    Part.Circle(Vector(-100, 0, 0), Vector(0, 0, 1), 1.6),
    Part.Circle(Vector(0, 0, 0), Vector(0, 0, 1), 1.6),
    Part.Circle(Vector(100, 0, 0), Vector(0, 0, 1), 1.6),
], False)
sketch4.addConstraint([
    Sketcher.Constraint("Coincident", 1, 3, -1, 1),
    Sketcher.Constraint("Equal", 0, 1),
    Sketcher.Constraint("Equal", 1, 2),
    Sketcher.Constraint("Symmetric", 0, 3, 2, 3, -1, 1),
    Sketcher.Constraint("PointOnObject", 0, 3, -1),
    Sketcher.Constraint("Diameter", 0, Q("3.3 mm")),
    Sketcher.Constraint("DistanceX", 0, 3, -1, 1, Q("100 mm")),
])
doc.recompute()
hole3 = doc.addObject("PartDesign::Hole", "Hole002")
body.addObject(hole3)
hole3.Profile = sketch4
hole3.ThreadType = "None"
hole3.Diameter = 3.3
hole3.DepthType = "Dimension"
hole3.Depth = 10.1
hole3.DrillPoint = "Angled"
hole3.DrillPointAngle = 118
hole3.Reversed = True

sketch5 = doc.addObject("Sketcher::SketchObject", "Sketch004")
body.addObject(sketch5)
sketch5.AttachmentSupport = (doc.XZ_Plane, [""])
sketch5.MapMode = "FlatFace"
sketch5.AttachmentOffset = App.Placement(Vector(0, 0, 15), App.Rotation())
sketch5.addGeometry([
    Part.Circle(Vector(-105, 0, 0), Vector(0, 0, 1), 2.5),
    Part.Circle(Vector(105, 0, 0), Vector(0, 0, 1), 2.5),
], False)
sketch5.addConstraint([
    Sketcher.Constraint("Equal", 0, 1),
    Sketcher.Constraint("Symmetric", 0, 3, 1, 3, -1, 1),
    Sketcher.Constraint("PointOnObject", 0, 3, -1),
    Sketcher.Constraint("Diameter", 0, Q("5 mm")),
    Sketcher.Constraint("DistanceX", 0, 3, -1, 1, Q("105 mm")),
])
doc.recompute()
hole4 = doc.addObject("PartDesign::Hole", "Hole003")
body.addObject(hole4)
hole4.Profile = sketch5
hole4.ThreadType = "None"
hole4.Diameter = 5
hole4.DepthType = "Dimension"
hole4.Depth = 15
hole4.DrillPoint = "Angled"
hole4.DrillPointAngle = 118

doc.recompute()
